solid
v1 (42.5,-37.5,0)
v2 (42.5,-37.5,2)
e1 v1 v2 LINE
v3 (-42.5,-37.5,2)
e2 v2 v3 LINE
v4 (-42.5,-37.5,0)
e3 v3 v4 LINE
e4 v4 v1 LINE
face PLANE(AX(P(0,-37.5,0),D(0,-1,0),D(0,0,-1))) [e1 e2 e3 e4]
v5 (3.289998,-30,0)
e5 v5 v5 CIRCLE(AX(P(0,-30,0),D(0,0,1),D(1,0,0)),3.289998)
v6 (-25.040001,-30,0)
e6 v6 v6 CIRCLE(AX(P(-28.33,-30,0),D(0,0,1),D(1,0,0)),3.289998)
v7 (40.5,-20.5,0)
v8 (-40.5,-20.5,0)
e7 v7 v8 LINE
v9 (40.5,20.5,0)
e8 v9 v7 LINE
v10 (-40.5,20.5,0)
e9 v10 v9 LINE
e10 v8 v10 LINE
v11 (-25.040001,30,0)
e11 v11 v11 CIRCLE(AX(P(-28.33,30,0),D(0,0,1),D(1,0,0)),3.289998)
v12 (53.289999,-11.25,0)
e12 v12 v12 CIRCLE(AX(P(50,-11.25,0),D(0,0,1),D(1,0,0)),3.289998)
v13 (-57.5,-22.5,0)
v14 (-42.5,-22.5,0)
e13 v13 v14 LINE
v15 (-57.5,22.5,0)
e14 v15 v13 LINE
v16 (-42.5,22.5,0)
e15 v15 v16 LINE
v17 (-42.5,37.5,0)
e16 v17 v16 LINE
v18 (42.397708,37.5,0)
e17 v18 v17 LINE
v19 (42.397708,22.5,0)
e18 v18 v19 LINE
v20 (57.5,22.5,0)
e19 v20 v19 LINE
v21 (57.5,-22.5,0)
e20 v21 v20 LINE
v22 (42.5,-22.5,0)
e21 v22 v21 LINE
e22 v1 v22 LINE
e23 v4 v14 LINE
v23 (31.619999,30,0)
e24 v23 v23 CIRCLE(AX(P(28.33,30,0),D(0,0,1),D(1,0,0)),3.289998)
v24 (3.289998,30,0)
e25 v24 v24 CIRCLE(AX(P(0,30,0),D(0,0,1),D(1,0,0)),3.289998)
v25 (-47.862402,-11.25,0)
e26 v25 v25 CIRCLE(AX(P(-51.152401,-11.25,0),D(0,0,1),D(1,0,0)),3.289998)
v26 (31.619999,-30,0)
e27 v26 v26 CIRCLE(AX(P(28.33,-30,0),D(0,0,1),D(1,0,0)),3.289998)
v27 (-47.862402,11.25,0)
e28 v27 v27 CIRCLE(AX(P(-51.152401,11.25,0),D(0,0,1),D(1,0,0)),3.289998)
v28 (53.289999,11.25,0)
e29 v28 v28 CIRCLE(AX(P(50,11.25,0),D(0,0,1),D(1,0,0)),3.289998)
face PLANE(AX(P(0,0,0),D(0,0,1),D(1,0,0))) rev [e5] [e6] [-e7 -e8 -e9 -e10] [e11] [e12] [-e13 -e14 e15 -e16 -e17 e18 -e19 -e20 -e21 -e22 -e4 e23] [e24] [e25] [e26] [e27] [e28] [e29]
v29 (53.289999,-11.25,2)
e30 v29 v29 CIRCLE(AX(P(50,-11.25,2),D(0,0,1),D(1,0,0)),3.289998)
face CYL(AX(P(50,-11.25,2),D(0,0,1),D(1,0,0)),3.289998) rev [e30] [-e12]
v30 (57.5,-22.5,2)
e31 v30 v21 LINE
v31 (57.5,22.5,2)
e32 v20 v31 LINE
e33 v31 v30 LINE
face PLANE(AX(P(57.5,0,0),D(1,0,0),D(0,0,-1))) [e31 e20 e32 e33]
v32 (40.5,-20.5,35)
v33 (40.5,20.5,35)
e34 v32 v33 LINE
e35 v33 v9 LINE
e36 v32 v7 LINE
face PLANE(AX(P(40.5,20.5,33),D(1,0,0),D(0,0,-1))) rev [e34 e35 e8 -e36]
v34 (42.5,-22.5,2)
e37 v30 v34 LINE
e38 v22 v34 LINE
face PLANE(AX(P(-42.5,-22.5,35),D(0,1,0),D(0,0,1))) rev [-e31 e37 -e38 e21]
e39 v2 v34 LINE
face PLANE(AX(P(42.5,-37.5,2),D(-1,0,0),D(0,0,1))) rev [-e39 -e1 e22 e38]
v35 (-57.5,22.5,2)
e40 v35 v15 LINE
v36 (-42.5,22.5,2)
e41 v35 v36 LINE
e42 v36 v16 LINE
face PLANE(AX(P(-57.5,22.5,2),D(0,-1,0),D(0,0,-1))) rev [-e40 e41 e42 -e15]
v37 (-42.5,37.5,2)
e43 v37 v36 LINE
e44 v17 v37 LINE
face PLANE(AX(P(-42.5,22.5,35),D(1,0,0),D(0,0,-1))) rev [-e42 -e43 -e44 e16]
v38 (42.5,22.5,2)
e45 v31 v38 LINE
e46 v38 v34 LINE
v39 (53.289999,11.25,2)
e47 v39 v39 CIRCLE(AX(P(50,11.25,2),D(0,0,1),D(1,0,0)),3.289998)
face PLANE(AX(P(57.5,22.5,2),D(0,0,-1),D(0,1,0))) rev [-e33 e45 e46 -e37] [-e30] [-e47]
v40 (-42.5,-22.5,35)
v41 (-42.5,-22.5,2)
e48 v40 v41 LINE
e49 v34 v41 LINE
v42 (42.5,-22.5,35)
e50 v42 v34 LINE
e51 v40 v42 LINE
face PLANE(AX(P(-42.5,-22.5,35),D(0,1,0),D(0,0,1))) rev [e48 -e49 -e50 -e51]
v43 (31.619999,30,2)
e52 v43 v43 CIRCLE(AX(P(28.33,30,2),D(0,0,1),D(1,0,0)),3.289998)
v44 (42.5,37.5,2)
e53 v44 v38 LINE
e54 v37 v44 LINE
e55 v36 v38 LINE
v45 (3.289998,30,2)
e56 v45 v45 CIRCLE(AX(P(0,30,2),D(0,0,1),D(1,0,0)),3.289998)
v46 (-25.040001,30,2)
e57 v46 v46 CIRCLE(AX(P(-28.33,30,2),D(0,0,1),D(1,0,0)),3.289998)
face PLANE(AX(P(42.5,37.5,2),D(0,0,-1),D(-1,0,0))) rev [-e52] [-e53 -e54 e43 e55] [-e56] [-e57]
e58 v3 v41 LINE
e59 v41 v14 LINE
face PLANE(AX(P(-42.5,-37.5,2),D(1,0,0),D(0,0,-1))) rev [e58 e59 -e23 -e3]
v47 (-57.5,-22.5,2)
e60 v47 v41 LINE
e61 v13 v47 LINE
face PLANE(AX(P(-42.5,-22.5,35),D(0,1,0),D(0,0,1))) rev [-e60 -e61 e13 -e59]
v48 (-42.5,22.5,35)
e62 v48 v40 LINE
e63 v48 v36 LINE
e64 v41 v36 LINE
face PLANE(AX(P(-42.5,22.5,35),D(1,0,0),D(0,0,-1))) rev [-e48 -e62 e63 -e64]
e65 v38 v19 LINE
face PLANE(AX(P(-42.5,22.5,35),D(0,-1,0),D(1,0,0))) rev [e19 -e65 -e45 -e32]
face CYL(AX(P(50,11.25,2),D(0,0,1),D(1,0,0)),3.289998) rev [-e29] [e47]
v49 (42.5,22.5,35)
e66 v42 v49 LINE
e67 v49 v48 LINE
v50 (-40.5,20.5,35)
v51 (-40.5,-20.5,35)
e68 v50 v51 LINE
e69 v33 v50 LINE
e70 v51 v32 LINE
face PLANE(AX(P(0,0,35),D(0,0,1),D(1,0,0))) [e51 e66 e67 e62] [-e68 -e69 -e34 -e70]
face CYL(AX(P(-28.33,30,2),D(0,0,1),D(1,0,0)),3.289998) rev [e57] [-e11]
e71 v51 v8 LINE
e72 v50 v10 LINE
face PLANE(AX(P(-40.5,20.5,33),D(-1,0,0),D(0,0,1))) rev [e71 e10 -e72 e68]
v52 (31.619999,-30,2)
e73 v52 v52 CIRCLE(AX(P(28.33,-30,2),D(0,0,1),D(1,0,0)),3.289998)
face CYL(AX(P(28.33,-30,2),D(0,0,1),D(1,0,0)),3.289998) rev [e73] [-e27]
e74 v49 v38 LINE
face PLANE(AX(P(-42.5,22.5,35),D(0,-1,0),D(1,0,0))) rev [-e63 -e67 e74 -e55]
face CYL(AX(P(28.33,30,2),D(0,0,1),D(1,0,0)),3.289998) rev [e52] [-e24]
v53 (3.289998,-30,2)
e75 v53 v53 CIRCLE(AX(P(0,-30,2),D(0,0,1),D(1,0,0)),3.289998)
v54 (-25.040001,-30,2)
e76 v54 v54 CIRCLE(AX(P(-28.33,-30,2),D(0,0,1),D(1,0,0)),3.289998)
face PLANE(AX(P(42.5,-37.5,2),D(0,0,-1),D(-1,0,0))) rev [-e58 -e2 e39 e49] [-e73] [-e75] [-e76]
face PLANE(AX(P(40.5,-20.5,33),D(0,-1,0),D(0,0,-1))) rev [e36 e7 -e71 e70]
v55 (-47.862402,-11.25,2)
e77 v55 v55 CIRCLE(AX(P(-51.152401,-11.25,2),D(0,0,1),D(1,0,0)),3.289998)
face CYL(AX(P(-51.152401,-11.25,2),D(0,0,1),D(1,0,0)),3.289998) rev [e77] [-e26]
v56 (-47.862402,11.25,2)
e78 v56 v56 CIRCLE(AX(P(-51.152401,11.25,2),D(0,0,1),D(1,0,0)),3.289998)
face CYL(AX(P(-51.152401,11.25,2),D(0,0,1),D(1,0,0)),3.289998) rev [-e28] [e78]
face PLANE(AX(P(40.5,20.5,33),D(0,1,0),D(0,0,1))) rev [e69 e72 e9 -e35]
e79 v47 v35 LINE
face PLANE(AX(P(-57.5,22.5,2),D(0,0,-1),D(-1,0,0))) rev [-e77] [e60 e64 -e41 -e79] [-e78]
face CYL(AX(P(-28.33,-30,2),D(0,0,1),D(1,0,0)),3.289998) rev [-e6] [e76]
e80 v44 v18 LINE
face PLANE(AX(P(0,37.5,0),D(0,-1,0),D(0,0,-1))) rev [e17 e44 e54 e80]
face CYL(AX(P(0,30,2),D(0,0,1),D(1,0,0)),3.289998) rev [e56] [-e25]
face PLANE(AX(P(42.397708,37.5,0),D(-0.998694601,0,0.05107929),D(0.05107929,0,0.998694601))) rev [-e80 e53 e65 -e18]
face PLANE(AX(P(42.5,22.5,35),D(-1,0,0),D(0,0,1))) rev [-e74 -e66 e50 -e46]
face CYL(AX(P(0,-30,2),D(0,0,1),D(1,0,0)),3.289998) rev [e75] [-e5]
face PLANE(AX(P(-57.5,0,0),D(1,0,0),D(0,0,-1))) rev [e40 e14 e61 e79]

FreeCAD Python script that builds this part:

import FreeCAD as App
import Part
import Sketcher

V = App.Vector


def add_polygon(sketch, points):
    """Adds a closed chain of lines whose ends are joined by coincident constraints."""
    first, n = sketch.GeometryCount, len(points)
    for a, b in zip(points, points[1:] + points[:1]):
        sketch.addGeometry(Part.LineSegment(App.Vector(*a, 0), App.Vector(*b, 0)), False)
    for i in range(n):
        sketch.addConstraint(Sketcher.Constraint("Coincident", first + i, 2, first + (i + 1) % n, 1))

doc = App.newDocument("Part")
body = doc.addObject("PartDesign::Body", "Body")

sketch1 = doc.addObject("Sketcher::SketchObject", "Sketch")
body.addObject(sketch1)
sketch1.AttachmentSupport = (doc.XY_Plane, [""])
sketch1.MapMode = "FlatFace"
add_polygon(sketch1, [(-42, 22), (-42, -22), (42, -22), (42, 22)])
sketch1.addConstraint(Sketcher.Constraint("Vertical", 0))
sketch1.addConstraint(Sketcher.Constraint("Horizontal", 1))
sketch1.addConstraint(Sketcher.Constraint("Vertical", 2))
sketch1.addConstraint(Sketcher.Constraint("Horizontal", 3))
sketch1.addConstraint(Sketcher.Constraint("Symmetric", 0, 2, 2, 2, -1, 1))
sketch1.addConstraint(Sketcher.Constraint("DistanceX", 1, 1, 1, 2, 85.0))
sketch1.addConstraint(Sketcher.Constraint("DistanceY", 0, 2, 0, 1, 45.0))
pad1 = doc.addObject("PartDesign::Pad", "Pad")
body.addObject(pad1)
pad1.Profile = sketch1
pad1.Length = 35

sketch2 = doc.addObject("Sketcher::SketchObject", "Sketch001")
body.addObject(sketch2)
sketch2.AttachmentSupport = (doc.XY_Plane, [""])
sketch2.MapMode = "FlatFace"
add_polygon(sketch2, [(40, 20), (40, -20), (-40, -20), (-40, 20)])
sketch2.addConstraint(Sketcher.Constraint("Vertical", 0))
sketch2.addConstraint(Sketcher.Constraint("Horizontal", 1))
sketch2.addConstraint(Sketcher.Constraint("Vertical", 2))
sketch2.addConstraint(Sketcher.Constraint("Horizontal", 3))
sketch2.addConstraint(Sketcher.Constraint("Symmetric", 0, 2, 2, 2, -1, 1))
sketch2.addConstraint(Sketcher.Constraint("DistanceX", 1, 2, 1, 1, 81.0))
sketch2.addConstraint(Sketcher.Constraint("DistanceY", 0, 2, 0, 1, 41.0))
pocket1 = doc.addObject("PartDesign::Pocket", "Pocket")
body.addObject(pocket1)
pocket1.Profile = sketch2
pocket1.Length = 33
pocket1.Reversed = True

sketch3 = doc.addObject("Sketcher::SketchObject", "Sketch002")
body.addObject(sketch3)
sketch3.AttachmentSupport = (doc.YZ_Plane, [""])
sketch3.MapMode = "FlatFace"
sketch3.AttachmentOffset = App.Placement(V(0, 0, 42.5), App.Rotation())
add_polygon(sketch3, [(22.5, 2), (-22.5, 2), (-22.5, 0), (22.5, 0)])
sketch3.addConstraint(Sketcher.Constraint("Horizontal", 0))
sketch3.addConstraint(Sketcher.Constraint("Vertical", 1))
sketch3.addConstraint(Sketcher.Constraint("Horizontal", 2))
sketch3.addConstraint(Sketcher.Constraint("Vertical", 3))
sketch3.addConstraint(Sketcher.Constraint("Symmetric", 1, 2, 2, 2, -1, 1))
sketch3.addConstraint(Sketcher.Constraint("DistanceX", 0, 2, 0, 1, 45.0))
sketch3.addConstraint(Sketcher.Constraint("DistanceY", 1, 2, 1, 1, 2.0))
pad2 = doc.addObject("PartDesign::Pad", "Pad001")
body.addObject(pad2)
pad2.Profile = sketch3
pad2.Length = 15

sketch4 = doc.addObject("Sketcher::SketchObject", "Sketch003")
body.addObject(sketch4)
sketch4.AttachmentSupport = (doc.XZ_Plane, [""])
sketch4.MapMode = "FlatFace"
sketch4.AttachmentOffset = App.Placement(V(0, 0, -22.5), App.Rotation())
add_polygon(sketch4, [(42.5, 2), (42.4, 0), (-42.5, 0), (-42.5, 2)])
sketch4.addConstraint(Sketcher.Constraint("Horizontal", 1))
sketch4.addConstraint(Sketcher.Constraint("Vertical", 2))
sketch4.addConstraint(Sketcher.Constraint("Horizontal", 3))
sketch4.addConstraint(Sketcher.Constraint("PointOnObject", 0, 2, -1))
sketch4.addConstraint(Sketcher.Constraint("DistanceX", 3, 1, 3, 2, 85.0))
sketch4.addConstraint(Sketcher.Constraint("DistanceY", 2, 1, 2, 2, 2.0))
sketch4.addConstraint(Sketcher.Constraint("DistanceX", 1, 2, -1, 1, 42.5))
sketch4.addConstraint(Sketcher.Constraint("DistanceX", 1, 2, 1, 1, 84.897708))
pad3 = doc.addObject("PartDesign::Pad", "Pad002")
body.addObject(pad3)
pad3.Profile = sketch4
pad3.Length = 15
pad3.Reversed = True

sketch5 = doc.addObject("Sketcher::SketchObject", "Sketch004")
body.addObject(sketch5)
sketch5.AttachmentSupport = (doc.YZ_Plane, [""])
sketch5.MapMode = "FlatFace"
sketch5.AttachmentOffset = App.Placement(V(0, 0, -42.5), App.Rotation())
add_polygon(sketch5, [(22.5, 0), (-22.5, 0), (-22.5, 2), (22.5, 2)])
sketch5.addConstraint(Sketcher.Constraint("Horizontal", 0))
sketch5.addConstraint(Sketcher.Constraint("Vertical", 1))
sketch5.addConstraint(Sketcher.Constraint("Horizontal", 2))
sketch5.addConstraint(Sketcher.Constraint("Vertical", 3))
sketch5.addConstraint(Sketcher.Constraint("Symmetric", 0, 2, 3, 2, -1, 1))
sketch5.addConstraint(Sketcher.Constraint("DistanceX", 0, 2, 0, 1, 45.0))
sketch5.addConstraint(Sketcher.Constraint("DistanceY", 1, 1, 1, 2, 2.0))
pad4 = doc.addObject("PartDesign::Pad", "Pad003")
body.addObject(pad4)
pad4.Profile = sketch5
pad4.Length = 15
pad4.Reversed = True

sketch6 = doc.addObject("Sketcher::SketchObject", "Sketch005")
body.addObject(sketch6)
sketch6.AttachmentSupport = (doc.XZ_Plane, [""])
sketch6.MapMode = "FlatFace"
sketch6.AttachmentOffset = App.Placement(V(0, 0, 22.5), App.Rotation())
add_polygon(sketch6, [(-42.5, 2), (-42.5, 0), (42.5, 0), (42.5, 2)])
sketch6.addConstraint(Sketcher.Constraint("Vertical", 0))
sketch6.addConstraint(Sketcher.Constraint("Horizontal", 1))
sketch6.addConstraint(Sketcher.Constraint("Vertical", 2))
sketch6.addConstraint(Sketcher.Constraint("Horizontal", 3))
sketch6.addConstraint(Sketcher.Constraint("Symmetric", 0, 2, 1, 2, -1, 1))
sketch6.addConstraint(Sketcher.Constraint("DistanceX", 1, 1, 1, 2, 85.0))
sketch6.addConstraint(Sketcher.Constraint("DistanceY", 0, 2, 0, 1, 2.0))
pad5 = doc.addObject("PartDesign::Pad", "Pad004")
body.addObject(pad5)
pad5.Profile = sketch6
pad5.Length = 15

sketch7 = doc.addObject("Sketcher::SketchObject", "Sketch006")
body.addObject(sketch7)
sketch7.AttachmentSupport = (doc.XY_Plane, [""])
sketch7.MapMode = "FlatFace"
sketch7.AttachmentOffset = App.Placement(V(0, 0, 2), App.Rotation())
sketch7.addGeometry(Part.Circle(V(50, 11.2, 0), V(0, 0, 1), 3.3), False)
sketch7.addGeometry(Part.Circle(V(50, -11.2, 0), V(0, 0, 1), 3.3), False)
sketch7.addGeometry(Part.Circle(V(-51.2, -11.2, 0), V(0, 0, 1), 3.3), False)
sketch7.addGeometry(Part.Circle(V(-51.2, 11.2, 0), V(0, 0, 1), 3.3), False)
sketch7.addGeometry(Part.Circle(V(-28.3, 30, 0), V(0, 0, 1), 3.3), False)
sketch7.addGeometry(Part.Circle(V(0, 30, 0), V(0, 0, 1), 3.3), False)
sketch7.addGeometry(Part.Circle(V(28.3, 30, 0), V(0, 0, 1), 3.3), False)
sketch7.addGeometry(Part.Circle(V(28.3, -30, 0), V(0, 0, 1), 3.3), False)
sketch7.addGeometry(Part.Circle(V(0, -30, 0), V(0, 0, 1), 3.3), False)
sketch7.addGeometry(Part.Circle(V(-28.3, -30, 0), V(0, 0, 1), 3.3), False)
sketch7.addConstraint(Sketcher.Constraint("Equal", 0, 1))
sketch7.addConstraint(Sketcher.Constraint("Equal", 1, 2))
sketch7.addConstraint(Sketcher.Constraint("Equal", 2, 3))
sketch7.addConstraint(Sketcher.Constraint("Equal", 3, 4))
sketch7.addConstraint(Sketcher.Constraint("Equal", 4, 5))
sketch7.addConstraint(Sketcher.Constraint("Equal", 5, 6))
sketch7.addConstraint(Sketcher.Constraint("Equal", 6, 7))
sketch7.addConstraint(Sketcher.Constraint("Equal", 7, 8))
sketch7.addConstraint(Sketcher.Constraint("Equal", 8, 9))
sketch7.addConstraint(Sketcher.Constraint("Symmetric", 4, 3, 7, 3, -1, 1))
sketch7.addConstraint(Sketcher.Constraint("Symmetric", 5, 3, 8, 3, -1, 1))
sketch7.addConstraint(Sketcher.Constraint("Symmetric", 6, 3, 9, 3, -1, 1))
sketch7.addConstraint(Sketcher.Constraint("Symmetric", 4, 3, 6, 3, -2))
sketch7.addConstraint(Sketcher.Constraint("Symmetric", 0, 3, 1, 3, -1))
sketch7.addConstraint(Sketcher.Constraint("Symmetric", 2, 3, 3, 3, -1))
sketch7.addConstraint(Sketcher.Constraint("PointOnObject", 5, 3, -2))
sketch7.addConstraint(Sketcher.Constraint("Horizontal", 1, 3, 2, 3))
sketch7.addConstraint(Sketcher.Constraint("Horizontal", 4, 3, 5, 3))
sketch7.addConstraint(Sketcher.Constraint("DistanceX", -1, 1, 0, 3, 50.0))
sketch7.addConstraint(Sketcher.Constraint("DistanceY", -1, 1, 4, 3, 30.0))
sketch7.addConstraint(Sketcher.Constraint("DistanceY", 1, 3, 0, 3, 22.5))
sketch7.addConstraint(Sketcher.Constraint("DistanceX", 4, 3, -1, 1, 28.33))
sketch7.addConstraint(Sketcher.Constraint("Diameter", 0, 6.579997))
sketch7.addConstraint(Sketcher.Constraint("DistanceX", 2, 3, -1, 1, 51.152401))
doc.recompute()
hole = doc.addObject("PartDesign::Hole", "Hole")
body.addObject(hole)
hole.Profile = sketch7
hole.ThreadType = "None"
hole.Diameter = 6.579997
hole.DepthType = "Dimension"
hole.Depth = 10
hole.DrillPoint = "Angled"
hole.DrillPointAngle = 118

sketch8 = doc.addObject("Sketcher::SketchObject", "Sketch007")
body.addObject(sketch8)
sketch8.AttachmentSupport = (doc.XY_Plane, [""])
sketch8.MapMode = "FlatFace"
sketch8.AttachmentOffset = App.Placement(V(0, 0, 35), App.Rotation())
add_polygon(sketch8, [(-40, 20), (-40, -20), (40, -20), (40, 20)])
sketch8.addConstraint(Sketcher.Constraint("Vertical", 0))
sketch8.addConstraint(Sketcher.Constraint("Horizontal", 1))
sketch8.addConstraint(Sketcher.Constraint("Vertical", 2))
sketch8.addConstraint(Sketcher.Constraint("Horizontal", 3))
sketch8.addConstraint(Sketcher.Constraint("Symmetric", 0, 2, 2, 2, -1, 1))
sketch8.addConstraint(Sketcher.Constraint("DistanceX", 1, 1, 1, 2, 81.0))
sketch8.addConstraint(Sketcher.Constraint("DistanceY", 0, 2, 0, 1, 41.0))
pocket2 = doc.addObject("PartDesign::Pocket", "Pocket001")
body.addObject(pocket2)
pocket2.Profile = sketch8
pocket2.Type = "UpToFirst"

doc.recompute()
